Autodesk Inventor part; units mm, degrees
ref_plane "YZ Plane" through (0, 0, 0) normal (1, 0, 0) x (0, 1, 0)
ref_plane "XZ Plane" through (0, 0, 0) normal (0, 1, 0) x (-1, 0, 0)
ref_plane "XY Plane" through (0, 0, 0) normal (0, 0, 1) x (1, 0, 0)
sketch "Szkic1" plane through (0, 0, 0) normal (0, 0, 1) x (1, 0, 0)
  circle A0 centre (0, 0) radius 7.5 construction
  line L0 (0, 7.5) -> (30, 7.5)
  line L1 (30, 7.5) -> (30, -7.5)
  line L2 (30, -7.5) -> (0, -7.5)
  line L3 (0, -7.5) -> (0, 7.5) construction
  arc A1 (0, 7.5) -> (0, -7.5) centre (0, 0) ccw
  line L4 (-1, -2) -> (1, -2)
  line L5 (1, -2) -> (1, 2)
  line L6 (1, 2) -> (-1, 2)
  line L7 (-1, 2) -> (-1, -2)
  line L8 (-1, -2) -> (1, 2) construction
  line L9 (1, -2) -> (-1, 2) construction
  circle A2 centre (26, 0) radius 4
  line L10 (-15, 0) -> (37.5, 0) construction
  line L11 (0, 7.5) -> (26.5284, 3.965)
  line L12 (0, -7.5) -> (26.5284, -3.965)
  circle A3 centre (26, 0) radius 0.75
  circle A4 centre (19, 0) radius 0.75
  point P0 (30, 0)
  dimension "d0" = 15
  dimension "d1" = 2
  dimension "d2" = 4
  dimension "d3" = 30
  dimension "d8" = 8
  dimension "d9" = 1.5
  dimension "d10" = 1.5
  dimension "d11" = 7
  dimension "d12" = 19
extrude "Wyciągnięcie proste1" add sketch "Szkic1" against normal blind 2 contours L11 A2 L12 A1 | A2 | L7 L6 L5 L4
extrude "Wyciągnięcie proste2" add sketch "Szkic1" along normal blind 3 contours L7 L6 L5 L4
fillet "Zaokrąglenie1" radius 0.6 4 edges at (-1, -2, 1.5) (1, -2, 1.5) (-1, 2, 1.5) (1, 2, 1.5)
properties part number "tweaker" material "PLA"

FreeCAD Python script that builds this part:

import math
import FreeCAD as App
import Part
import Sketcher
from FreeCAD import Vector


def edges_at(feature, points):
    """Names of the edges that pass closest to the given points."""
    edges = feature.Shape.Edges
    near = lambda p: min(range(len(edges)), key=lambda i: edges[i].distToShape(Part.Vertex(*p))[0])
    return sorted({f"Edge{near(p) + 1}" for p in points})


def add_polygon(sketch, points):
    """Adds a closed chain of lines whose ends are joined by coincident constraints."""
    first, n = sketch.GeometryCount, len(points)
    for a, b in zip(points, points[1:] + points[:1]):
        sketch.addGeometry(Part.LineSegment(App.Vector(*a, 0), App.Vector(*b, 0)), False)
    for i in range(n):
        sketch.addConstraint(Sketcher.Constraint("Coincident", first + i, 2, first + (i + 1) % n, 1))

doc = App.newDocument("Part")
params = doc.addObject("Spreadsheet::Sheet", "Params")
for row, (alias, value) in enumerate([
    ("sketch1_radius", "4 mm"),
    ("sketch1_diameter", "1.5 mm"),
    ("sketch1_radius2", "7.5 mm"),
    ("pad1_length", "2 mm"),
    ("sketch2_width", "2 mm"),
    ("sketch2_height", "4 mm"),
    ("pad2_length", "3 mm"),
    ("fillet_radius", "0.6 mm"),
], start=1):
    params.set(f"A{row}", alias)
    params.set(f"B{row}", "=" + value)
    params.setAlias(f"B{row}", alias)

body = doc.addObject("PartDesign::Body", "Body")

# Sketch on XY plane
sketch1 = body.newObject("Sketcher::SketchObject", "Sketch")
sketch1.AttachmentSupport = (doc.getObject("XY_Plane"), [""])
sketch1.MapMode = "FlatFace"
sketch1.addGeometry([
    Part.LineSegment(Vector(26.5284, 3.965, 0), Vector(0, 7.5, 0)),  # 0
    Part.ArcOfCircle(Part.Circle(Vector(0, 0, 0), Vector(0, 0, 1), 7.5), math.radians(90), math.radians(270)),  # 1
    Part.LineSegment(Vector(0, -7.5, 0), Vector(26.5284, -3.965, 0)),  # 2
    Part.ArcOfCircle(Part.Circle(Vector(26, 0, 0), Vector(0, 0, 1), 4), math.radians(-82.409143), math.radians(82.409143)),  # 3
    Part.Circle(Vector(19, 0, 0), Vector(0, 0, 1), 0.75),  # 4
    Part.Circle(Vector(26, 0, 0), Vector(0, 0, 1), 0.75),  # 5
], False)
sketch1.addConstraint([
    Sketcher.Constraint("Coincident", 0, 2, 1, 1),
    Sketcher.Constraint("Coincident", 1, 2, 2, 1),
    Sketcher.Constraint("Tangent", 2, 2, 3, 1),
    Sketcher.Constraint("Tangent", 3, 2, 0, 1),
    Sketcher.Constraint("Coincident", 1, 3, -1, 1),
    Sketcher.Constraint("Coincident", 5, 3, 3, 3),
    Sketcher.Constraint("Equal", 4, 5),
    Sketcher.Constraint("Symmetric", 2, 2, 3, 2, -1),
    Sketcher.Constraint("PointOnObject", 4, 3, -1),
    Sketcher.Constraint("PointOnObject", 0, 2, -2),
    Sketcher.Constraint("Radius", 3, 4.0),
    Sketcher.Constraint("Diameter", 4, 1.5),
    Sketcher.Constraint("Radius", 1, 7.5),
    Sketcher.Constraint("DistanceX", -1, 1, 4, 3, 19.0),
    Sketcher.Constraint("DistanceX", 4, 3, 3, 3, 7.0),
])
sketch1.setExpression("Constraints[10]", "Params.sketch1_radius")
sketch1.setExpression("Constraints[11]", "Params.sketch1_diameter")
sketch1.setExpression("Constraints[12]", "Params.sketch1_radius2")
pad1 = body.newObject("PartDesign::Pad", "Pad")
pad1.Profile = sketch1
pad1.setExpression("Length", "Params.pad1_length")
pad1.Reversed = True

# Sketch on XY plane
sketch2 = body.newObject("Sketcher::SketchObject", "Sketch001")
sketch2.AttachmentSupport = (doc.getObject("XY_Plane"), [""])
sketch2.MapMode = "FlatFace"
add_polygon(sketch2, [(-1, 2), (-1, -2), (1, -2), (1, 2)])  # lines 0-3
sketch2.addConstraint([
    Sketcher.Constraint("Vertical", 0),
    Sketcher.Constraint("Horizontal", 1),
    Sketcher.Constraint("Vertical", 2),
    Sketcher.Constraint("Horizontal", 3),
    Sketcher.Constraint("Symmetric", 0, 2, 2, 2, -1, 1),
    Sketcher.Constraint("DistanceX", 1, 1, 1, 2, 2.0),
    Sketcher.Constraint("DistanceY", 0, 2, 0, 1, 4.0),
])
sketch2.setExpression("Constraints[9]", "Params.sketch2_width")
sketch2.setExpression("Constraints[10]", "Params.sketch2_height")
pad2 = body.newObject("PartDesign::Pad", "Pad001")
pad2.Profile = sketch2
pad2.setExpression("Length", "Params.pad2_length")
doc.recompute()

fillet = body.newObject("PartDesign::Fillet", "Fillet")
fillet.Base = (pad2, edges_at(pad2, [
    (-1, -2, 1.5),
    (1, -2, 1.5),
    (-1, 2, 1.5),
    (1, 2, 1.5),
]))
fillet.setExpression("Radius", "Params.fillet_radius")

doc.recompute()
